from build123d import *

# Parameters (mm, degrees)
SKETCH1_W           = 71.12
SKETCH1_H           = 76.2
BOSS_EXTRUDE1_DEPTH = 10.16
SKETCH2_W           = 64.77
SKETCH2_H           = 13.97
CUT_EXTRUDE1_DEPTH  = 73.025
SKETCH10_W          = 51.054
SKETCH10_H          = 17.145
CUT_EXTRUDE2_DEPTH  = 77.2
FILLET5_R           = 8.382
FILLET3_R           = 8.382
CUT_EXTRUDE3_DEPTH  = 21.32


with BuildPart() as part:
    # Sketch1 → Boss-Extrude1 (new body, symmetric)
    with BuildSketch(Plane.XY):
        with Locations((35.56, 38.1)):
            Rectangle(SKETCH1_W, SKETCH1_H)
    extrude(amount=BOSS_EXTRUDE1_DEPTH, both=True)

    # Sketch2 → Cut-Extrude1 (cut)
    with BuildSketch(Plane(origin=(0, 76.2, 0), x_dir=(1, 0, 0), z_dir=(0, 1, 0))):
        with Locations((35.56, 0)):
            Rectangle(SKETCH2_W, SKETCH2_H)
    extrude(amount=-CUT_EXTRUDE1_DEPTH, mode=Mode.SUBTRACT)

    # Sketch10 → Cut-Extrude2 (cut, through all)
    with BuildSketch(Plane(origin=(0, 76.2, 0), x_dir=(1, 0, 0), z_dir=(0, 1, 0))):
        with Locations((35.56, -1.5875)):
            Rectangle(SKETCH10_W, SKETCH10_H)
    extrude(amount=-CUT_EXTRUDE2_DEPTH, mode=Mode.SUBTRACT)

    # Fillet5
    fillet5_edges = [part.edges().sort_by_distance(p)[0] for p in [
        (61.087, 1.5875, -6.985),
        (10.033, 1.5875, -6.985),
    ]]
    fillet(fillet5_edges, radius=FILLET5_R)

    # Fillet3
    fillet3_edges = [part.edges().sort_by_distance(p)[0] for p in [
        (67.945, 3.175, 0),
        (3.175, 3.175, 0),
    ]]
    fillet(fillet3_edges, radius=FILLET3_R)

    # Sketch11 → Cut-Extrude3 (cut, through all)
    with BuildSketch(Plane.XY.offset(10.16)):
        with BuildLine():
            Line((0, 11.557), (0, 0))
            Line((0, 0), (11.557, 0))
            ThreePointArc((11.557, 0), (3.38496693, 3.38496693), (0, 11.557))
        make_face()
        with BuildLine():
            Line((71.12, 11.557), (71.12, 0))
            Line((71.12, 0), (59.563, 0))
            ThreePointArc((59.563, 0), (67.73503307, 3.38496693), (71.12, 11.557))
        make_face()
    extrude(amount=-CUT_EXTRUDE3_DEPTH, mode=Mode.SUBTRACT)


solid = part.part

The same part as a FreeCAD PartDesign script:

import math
import FreeCAD as App
import Part
import Sketcher

V = App.Vector
Q = App.Units.Quantity


def edges_at(feature, points):
    """Names of the edges that pass closest to the given points."""
    edges = feature.Shape.Edges
    near = lambda p: min(range(len(edges)), key=lambda i: edges[i].distToShape(Part.Vertex(*p))[0])
    return sorted({f"Edge{near(p) + 1}" for p in points})

doc = App.newDocument("Part")
params = doc.addObject("Spreadsheet::Sheet", "Params")
for row, (alias, value) in enumerate([
    ("sketch1_height", "3 in"),
    ("sketch1_width", "2.8 in"),
    ("pad1_length", "0.8 in"),
    ("sketch2_width", "2.55 in"),
    ("sketch2_height", "0.55 in"),
    ("pocket1_length", "2.875 in"),
    ("sketch3_width", "2.01 in"),
    ("sketch3_height", "0.675 in"),
    ("fillet_radius", "0.33 in"),
    ("fillet2_radius", "0.33 in"),
    ("sketch4_radius", "0.455 in"),
], start=1):
    params.set(f"A{row}", alias)
    params.set(f"B{row}", "=" + value)
    params.setAlias(f"B{row}", alias)

body = doc.addObject("PartDesign::Body", "Body")

# Sketch on XY plane
sketch1 = body.newObject("Sketcher::SketchObject", "Sketch")
sketch1.AttachmentSupport = (doc.getObject("XY_Plane"), [""])
sketch1.MapMode = "FlatFace"
sketch1.addGeometry([
    Part.LineSegment(V(0, 76.2, 0), V(0, 0, 0)),
    Part.LineSegment(V(0, 0, 0), V(71.12, 0, 0)),
    Part.LineSegment(V(71.12, 0, 0), V(71.12, 76.2, 0)),
    Part.LineSegment(V(71.12, 76.2, 0), V(0, 76.2, 0)),
], False)
sketch1.addConstraint([
    Sketcher.Constraint("Coincident", 0, 2, 1, 1),
    Sketcher.Constraint("Coincident", 1, 2, 2, 1),
    Sketcher.Constraint("Coincident", 2, 2, 3, 1),
    Sketcher.Constraint("Coincident", 3, 2, 0, 1),
    Sketcher.Constraint("Vertical", 0),
    Sketcher.Constraint("Horizontal", 1),
    Sketcher.Constraint("Vertical", 2),
    Sketcher.Constraint("Horizontal", 3),
    Sketcher.Constraint("Coincident", 0, 2, -1, 1),
    Sketcher.Constraint("DistanceY", 0, 2, 0, 1, Q("3 in")),
    Sketcher.Constraint("DistanceX", 1, 1, 1, 2, Q("2.8 in")),
])
sketch1.setExpression("Constraints[9]", "Params.sketch1_height")
sketch1.setExpression("Constraints[10]", "Params.sketch1_width")
pad1 = body.newObject("PartDesign::Pad", "Pad")
pad1.Profile = sketch1
pad1.setExpression("Length", "Params.pad1_length")
pad1.Midplane = True

# Sketch on XZ plane
sketch2 = body.newObject("Sketcher::SketchObject", "Sketch001")
sketch2.AttachmentSupport = (doc.getObject("XZ_Plane"), [""])
sketch2.MapMode = "FlatFace"
sketch2.AttachmentOffset = App.Placement(V(0, 0, -3 * 25.4), App.Rotation())
sketch2.addGeometry([
    Part.LineSegment(V(3.175, -6.985, 0), V(3.175, 6.985, 0)),
    Part.LineSegment(V(3.175, 6.985, 0), V(67.945, 6.985, 0)),
    Part.LineSegment(V(67.945, 6.985, 0), V(67.945, -6.985, 0)),
    Part.LineSegment(V(67.945, -6.985, 0), V(3.175, -6.985, 0)),
], False)
sketch2.addConstraint([
    Sketcher.Constraint("Coincident", 0, 2, 1, 1),
    Sketcher.Constraint("Coincident", 1, 2, 2, 1),
    Sketcher.Constraint("Coincident", 2, 2, 3, 1),
    Sketcher.Constraint("Coincident", 3, 2, 0, 1),
    Sketcher.Constraint("Vertical", 0),
    Sketcher.Constraint("Horizontal", 1),
    Sketcher.Constraint("Vertical", 2),
    Sketcher.Constraint("Horizontal", 3),
    Sketcher.Constraint("DistanceX", 1, 1, 1, 2, Q("2.55 in")),
    Sketcher.Constraint("DistanceY", 0, 1, 0, 2, Q("0.55 in")),
    Sketcher.Constraint("DistanceX", -1, 1, 0, 2, Q("0.125 in")),
    Sketcher.Constraint("DistanceY", -1, 1, 0, 2, Q("0.275 in")),
])
sketch2.setExpression("Constraints[8]", "Params.sketch2_width")
sketch2.setExpression("Constraints[9]", "Params.sketch2_height")
pocket1 = body.newObject("PartDesign::Pocket", "Pocket")
pocket1.Profile = sketch2
pocket1.setExpression("Length", "Params.pocket1_length")
pocket1.Reversed = True

# Sketch on XZ plane
sketch3 = body.newObject("Sketcher::SketchObject", "Sketch002")
sketch3.AttachmentSupport = (doc.getObject("XZ_Plane"), [""])
sketch3.MapMode = "FlatFace"
sketch3.AttachmentOffset = App.Placement(V(0, 0, -3 * 25.4), App.Rotation())
sketch3.addGeometry([
    Part.LineSegment(V(10.033, -6.985, 0), V(10.033, 10.16, 0)),
    Part.LineSegment(V(10.033, 10.16, 0), V(61.087, 10.16, 0)),
    Part.LineSegment(V(61.087, 10.16, 0), V(61.087, -6.985, 0)),
    Part.LineSegment(V(61.087, -6.985, 0), V(10.033, -6.985, 0)),
], False)
sketch3.addConstraint([
    Sketcher.Constraint("Coincident", 0, 2, 1, 1),
    Sketcher.Constraint("Coincident", 1, 2, 2, 1),
    Sketcher.Constraint("Coincident", 2, 2, 3, 1),
    Sketcher.Constraint("Coincident", 3, 2, 0, 1),
    Sketcher.Constraint("Vertical", 0),
    Sketcher.Constraint("Horizontal", 1),
    Sketcher.Constraint("Vertical", 2),
    Sketcher.Constraint("Horizontal", 3),
    Sketcher.Constraint("DistanceX", 1, 1, 1, 2, Q("2.01 in")),
    Sketcher.Constraint("DistanceY", -1, 1, 0, 2, Q("0.4 in")),
    Sketcher.Constraint("DistanceY", 0, 1, 0, 2, Q("0.675 in")),
    Sketcher.Constraint("DistanceX", -1, 1, 0, 2, Q("0.395 in")),
])
sketch3.setExpression("Constraints[8]", "Params.sketch3_width")
sketch3.setExpression("Constraints[10]", "Params.sketch3_height")
pocket2 = body.newObject("PartDesign::Pocket", "Pocket001")
pocket2.Profile = sketch3
pocket2.Type = "ThroughAll"
pocket2.Reversed = True
doc.recompute()

fillet = body.newObject("PartDesign::Fillet", "Fillet")
fillet.Base = (pocket2, edges_at(pocket2, [(61.087, 1.587, -6.985), (10.033, 1.587, -6.985)]))
fillet.setExpression("Radius", "Params.fillet_radius")
doc.recompute()

fillet2 = body.newObject("PartDesign::Fillet", "Fillet001")
fillet2.Base = (fillet, edges_at(fillet, [(67.945, 3.175, 0), (3.175, 3.175, 0)]))
fillet2.setExpression("Radius", "Params.fillet2_radius")

# Sketch on XY plane
sketch4 = body.newObject("Sketcher::SketchObject", "Sketch003")
sketch4.AttachmentSupport = (doc.getObject("XY_Plane"), [""])
sketch4.MapMode = "FlatFace"
sketch4.AttachmentOffset = App.Placement(V(0, 0, 0.4 * 25.4), App.Rotation())
sketch4.addGeometry([
    Part.LineSegment(V(0, 11.557, 0), V(0, 0, 0)),  # 0
    Part.LineSegment(V(0, 0, 0), V(11.557, 0, 0)),  # 1
    Part.ArcOfCircle(Part.Circle(V(11.557, 11.557, 0), V(0, 0, 1), 11.557), math.radians(-180), math.radians(-90)),  # 2
    Part.LineSegment(V(71.12, 0, 0), V(71.12, 11.557, 0)),  # 3
    Part.ArcOfCircle(Part.Circle(V(59.563, 11.557, 0), V(0, 0, 1), 11.557), math.radians(-90), math.radians(0)),  # 4
    Part.LineSegment(V(59.563, 0, 0), V(71.12, 0, 0)),  # 5
], False)
sketch4.addConstraint([
    Sketcher.Constraint("Coincident", 0, 2, 1, 1),
    Sketcher.Constraint("Tangent", 1, 2, 2, 2),
    Sketcher.Constraint("Tangent", 2, 1, 0, 1),
    Sketcher.Constraint("Tangent", 3, 2, 4, 2),
    Sketcher.Constraint("Tangent", 4, 1, 5, 1),
    Sketcher.Constraint("Coincident", 5, 2, 3, 1),
    Sketcher.Constraint("Vertical", 0),
    Sketcher.Constraint("Horizontal", 1),
    Sketcher.Constraint("Vertical", 3),
    Sketcher.Constraint("Horizontal", 5),
    Sketcher.Constraint("Coincident", 0, 2, -1, 1),
    Sketcher.Constraint("Equal", 2, 4),
    Sketcher.Constraint("PointOnObject", 4, 1, -1),
    Sketcher.Constraint("Radius", 2, Q("0.455 in")),
    Sketcher.Constraint("DistanceX", -1, 1, 3, 2, Q("2.8 in")),
])
sketch4.setExpression("Constraints[13]", "Params.sketch4_radius")
pocket3 = body.newObject("PartDesign::Pocket", "Pocket002")
pocket3.Profile = sketch4
pocket3.Type = "ThroughAll"

doc.recompute()
